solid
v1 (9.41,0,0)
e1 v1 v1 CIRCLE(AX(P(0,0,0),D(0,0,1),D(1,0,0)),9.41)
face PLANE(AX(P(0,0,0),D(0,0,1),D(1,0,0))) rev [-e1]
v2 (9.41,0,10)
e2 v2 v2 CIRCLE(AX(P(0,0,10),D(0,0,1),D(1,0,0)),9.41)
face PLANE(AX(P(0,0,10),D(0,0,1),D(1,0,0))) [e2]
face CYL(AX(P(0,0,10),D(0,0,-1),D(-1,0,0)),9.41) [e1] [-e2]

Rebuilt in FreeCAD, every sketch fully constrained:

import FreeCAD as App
import Part
import Sketcher
Q = App.Units.Quantity

doc = App.newDocument("Part")
params = doc.addObject("Spreadsheet::Sheet", "Params")
for row, (alias, value) in enumerate([
    ("sketch1_diameter", "18.82 mm"),
    ("pad1_length", "10 mm"),
], start=1):
    params.set(f"A{row}", alias)
    params.set(f"B{row}", "=" + value)
    params.setAlias(f"B{row}", alias)

body = doc.addObject("PartDesign::Body", "Body")

sketch1 = body.newObject("Sketcher::SketchObject", "Sketch")
sketch1.AttachmentSupport = (doc.getObject("XY_Plane"), [""])
sketch1.MapMode = "FlatFace"
sketch1.addGeometry(Part.Circle(App.Vector(0, 0, 0), App.Vector(0, 0, 1), 9.41), False)
sketch1.addConstraint([
    Sketcher.Constraint("Coincident", 0, 3, -1, 1),
    Sketcher.Constraint("Diameter", 0, Q("18.82 mm")),
])
sketch1.setExpression("Constraints[1]", "Params.sketch1_diameter")
pad1 = body.newObject("PartDesign::Pad", "Pad")
pad1.Profile = sketch1
pad1.setExpression("Length", "Params.pad1_length")

doc.recompute()
